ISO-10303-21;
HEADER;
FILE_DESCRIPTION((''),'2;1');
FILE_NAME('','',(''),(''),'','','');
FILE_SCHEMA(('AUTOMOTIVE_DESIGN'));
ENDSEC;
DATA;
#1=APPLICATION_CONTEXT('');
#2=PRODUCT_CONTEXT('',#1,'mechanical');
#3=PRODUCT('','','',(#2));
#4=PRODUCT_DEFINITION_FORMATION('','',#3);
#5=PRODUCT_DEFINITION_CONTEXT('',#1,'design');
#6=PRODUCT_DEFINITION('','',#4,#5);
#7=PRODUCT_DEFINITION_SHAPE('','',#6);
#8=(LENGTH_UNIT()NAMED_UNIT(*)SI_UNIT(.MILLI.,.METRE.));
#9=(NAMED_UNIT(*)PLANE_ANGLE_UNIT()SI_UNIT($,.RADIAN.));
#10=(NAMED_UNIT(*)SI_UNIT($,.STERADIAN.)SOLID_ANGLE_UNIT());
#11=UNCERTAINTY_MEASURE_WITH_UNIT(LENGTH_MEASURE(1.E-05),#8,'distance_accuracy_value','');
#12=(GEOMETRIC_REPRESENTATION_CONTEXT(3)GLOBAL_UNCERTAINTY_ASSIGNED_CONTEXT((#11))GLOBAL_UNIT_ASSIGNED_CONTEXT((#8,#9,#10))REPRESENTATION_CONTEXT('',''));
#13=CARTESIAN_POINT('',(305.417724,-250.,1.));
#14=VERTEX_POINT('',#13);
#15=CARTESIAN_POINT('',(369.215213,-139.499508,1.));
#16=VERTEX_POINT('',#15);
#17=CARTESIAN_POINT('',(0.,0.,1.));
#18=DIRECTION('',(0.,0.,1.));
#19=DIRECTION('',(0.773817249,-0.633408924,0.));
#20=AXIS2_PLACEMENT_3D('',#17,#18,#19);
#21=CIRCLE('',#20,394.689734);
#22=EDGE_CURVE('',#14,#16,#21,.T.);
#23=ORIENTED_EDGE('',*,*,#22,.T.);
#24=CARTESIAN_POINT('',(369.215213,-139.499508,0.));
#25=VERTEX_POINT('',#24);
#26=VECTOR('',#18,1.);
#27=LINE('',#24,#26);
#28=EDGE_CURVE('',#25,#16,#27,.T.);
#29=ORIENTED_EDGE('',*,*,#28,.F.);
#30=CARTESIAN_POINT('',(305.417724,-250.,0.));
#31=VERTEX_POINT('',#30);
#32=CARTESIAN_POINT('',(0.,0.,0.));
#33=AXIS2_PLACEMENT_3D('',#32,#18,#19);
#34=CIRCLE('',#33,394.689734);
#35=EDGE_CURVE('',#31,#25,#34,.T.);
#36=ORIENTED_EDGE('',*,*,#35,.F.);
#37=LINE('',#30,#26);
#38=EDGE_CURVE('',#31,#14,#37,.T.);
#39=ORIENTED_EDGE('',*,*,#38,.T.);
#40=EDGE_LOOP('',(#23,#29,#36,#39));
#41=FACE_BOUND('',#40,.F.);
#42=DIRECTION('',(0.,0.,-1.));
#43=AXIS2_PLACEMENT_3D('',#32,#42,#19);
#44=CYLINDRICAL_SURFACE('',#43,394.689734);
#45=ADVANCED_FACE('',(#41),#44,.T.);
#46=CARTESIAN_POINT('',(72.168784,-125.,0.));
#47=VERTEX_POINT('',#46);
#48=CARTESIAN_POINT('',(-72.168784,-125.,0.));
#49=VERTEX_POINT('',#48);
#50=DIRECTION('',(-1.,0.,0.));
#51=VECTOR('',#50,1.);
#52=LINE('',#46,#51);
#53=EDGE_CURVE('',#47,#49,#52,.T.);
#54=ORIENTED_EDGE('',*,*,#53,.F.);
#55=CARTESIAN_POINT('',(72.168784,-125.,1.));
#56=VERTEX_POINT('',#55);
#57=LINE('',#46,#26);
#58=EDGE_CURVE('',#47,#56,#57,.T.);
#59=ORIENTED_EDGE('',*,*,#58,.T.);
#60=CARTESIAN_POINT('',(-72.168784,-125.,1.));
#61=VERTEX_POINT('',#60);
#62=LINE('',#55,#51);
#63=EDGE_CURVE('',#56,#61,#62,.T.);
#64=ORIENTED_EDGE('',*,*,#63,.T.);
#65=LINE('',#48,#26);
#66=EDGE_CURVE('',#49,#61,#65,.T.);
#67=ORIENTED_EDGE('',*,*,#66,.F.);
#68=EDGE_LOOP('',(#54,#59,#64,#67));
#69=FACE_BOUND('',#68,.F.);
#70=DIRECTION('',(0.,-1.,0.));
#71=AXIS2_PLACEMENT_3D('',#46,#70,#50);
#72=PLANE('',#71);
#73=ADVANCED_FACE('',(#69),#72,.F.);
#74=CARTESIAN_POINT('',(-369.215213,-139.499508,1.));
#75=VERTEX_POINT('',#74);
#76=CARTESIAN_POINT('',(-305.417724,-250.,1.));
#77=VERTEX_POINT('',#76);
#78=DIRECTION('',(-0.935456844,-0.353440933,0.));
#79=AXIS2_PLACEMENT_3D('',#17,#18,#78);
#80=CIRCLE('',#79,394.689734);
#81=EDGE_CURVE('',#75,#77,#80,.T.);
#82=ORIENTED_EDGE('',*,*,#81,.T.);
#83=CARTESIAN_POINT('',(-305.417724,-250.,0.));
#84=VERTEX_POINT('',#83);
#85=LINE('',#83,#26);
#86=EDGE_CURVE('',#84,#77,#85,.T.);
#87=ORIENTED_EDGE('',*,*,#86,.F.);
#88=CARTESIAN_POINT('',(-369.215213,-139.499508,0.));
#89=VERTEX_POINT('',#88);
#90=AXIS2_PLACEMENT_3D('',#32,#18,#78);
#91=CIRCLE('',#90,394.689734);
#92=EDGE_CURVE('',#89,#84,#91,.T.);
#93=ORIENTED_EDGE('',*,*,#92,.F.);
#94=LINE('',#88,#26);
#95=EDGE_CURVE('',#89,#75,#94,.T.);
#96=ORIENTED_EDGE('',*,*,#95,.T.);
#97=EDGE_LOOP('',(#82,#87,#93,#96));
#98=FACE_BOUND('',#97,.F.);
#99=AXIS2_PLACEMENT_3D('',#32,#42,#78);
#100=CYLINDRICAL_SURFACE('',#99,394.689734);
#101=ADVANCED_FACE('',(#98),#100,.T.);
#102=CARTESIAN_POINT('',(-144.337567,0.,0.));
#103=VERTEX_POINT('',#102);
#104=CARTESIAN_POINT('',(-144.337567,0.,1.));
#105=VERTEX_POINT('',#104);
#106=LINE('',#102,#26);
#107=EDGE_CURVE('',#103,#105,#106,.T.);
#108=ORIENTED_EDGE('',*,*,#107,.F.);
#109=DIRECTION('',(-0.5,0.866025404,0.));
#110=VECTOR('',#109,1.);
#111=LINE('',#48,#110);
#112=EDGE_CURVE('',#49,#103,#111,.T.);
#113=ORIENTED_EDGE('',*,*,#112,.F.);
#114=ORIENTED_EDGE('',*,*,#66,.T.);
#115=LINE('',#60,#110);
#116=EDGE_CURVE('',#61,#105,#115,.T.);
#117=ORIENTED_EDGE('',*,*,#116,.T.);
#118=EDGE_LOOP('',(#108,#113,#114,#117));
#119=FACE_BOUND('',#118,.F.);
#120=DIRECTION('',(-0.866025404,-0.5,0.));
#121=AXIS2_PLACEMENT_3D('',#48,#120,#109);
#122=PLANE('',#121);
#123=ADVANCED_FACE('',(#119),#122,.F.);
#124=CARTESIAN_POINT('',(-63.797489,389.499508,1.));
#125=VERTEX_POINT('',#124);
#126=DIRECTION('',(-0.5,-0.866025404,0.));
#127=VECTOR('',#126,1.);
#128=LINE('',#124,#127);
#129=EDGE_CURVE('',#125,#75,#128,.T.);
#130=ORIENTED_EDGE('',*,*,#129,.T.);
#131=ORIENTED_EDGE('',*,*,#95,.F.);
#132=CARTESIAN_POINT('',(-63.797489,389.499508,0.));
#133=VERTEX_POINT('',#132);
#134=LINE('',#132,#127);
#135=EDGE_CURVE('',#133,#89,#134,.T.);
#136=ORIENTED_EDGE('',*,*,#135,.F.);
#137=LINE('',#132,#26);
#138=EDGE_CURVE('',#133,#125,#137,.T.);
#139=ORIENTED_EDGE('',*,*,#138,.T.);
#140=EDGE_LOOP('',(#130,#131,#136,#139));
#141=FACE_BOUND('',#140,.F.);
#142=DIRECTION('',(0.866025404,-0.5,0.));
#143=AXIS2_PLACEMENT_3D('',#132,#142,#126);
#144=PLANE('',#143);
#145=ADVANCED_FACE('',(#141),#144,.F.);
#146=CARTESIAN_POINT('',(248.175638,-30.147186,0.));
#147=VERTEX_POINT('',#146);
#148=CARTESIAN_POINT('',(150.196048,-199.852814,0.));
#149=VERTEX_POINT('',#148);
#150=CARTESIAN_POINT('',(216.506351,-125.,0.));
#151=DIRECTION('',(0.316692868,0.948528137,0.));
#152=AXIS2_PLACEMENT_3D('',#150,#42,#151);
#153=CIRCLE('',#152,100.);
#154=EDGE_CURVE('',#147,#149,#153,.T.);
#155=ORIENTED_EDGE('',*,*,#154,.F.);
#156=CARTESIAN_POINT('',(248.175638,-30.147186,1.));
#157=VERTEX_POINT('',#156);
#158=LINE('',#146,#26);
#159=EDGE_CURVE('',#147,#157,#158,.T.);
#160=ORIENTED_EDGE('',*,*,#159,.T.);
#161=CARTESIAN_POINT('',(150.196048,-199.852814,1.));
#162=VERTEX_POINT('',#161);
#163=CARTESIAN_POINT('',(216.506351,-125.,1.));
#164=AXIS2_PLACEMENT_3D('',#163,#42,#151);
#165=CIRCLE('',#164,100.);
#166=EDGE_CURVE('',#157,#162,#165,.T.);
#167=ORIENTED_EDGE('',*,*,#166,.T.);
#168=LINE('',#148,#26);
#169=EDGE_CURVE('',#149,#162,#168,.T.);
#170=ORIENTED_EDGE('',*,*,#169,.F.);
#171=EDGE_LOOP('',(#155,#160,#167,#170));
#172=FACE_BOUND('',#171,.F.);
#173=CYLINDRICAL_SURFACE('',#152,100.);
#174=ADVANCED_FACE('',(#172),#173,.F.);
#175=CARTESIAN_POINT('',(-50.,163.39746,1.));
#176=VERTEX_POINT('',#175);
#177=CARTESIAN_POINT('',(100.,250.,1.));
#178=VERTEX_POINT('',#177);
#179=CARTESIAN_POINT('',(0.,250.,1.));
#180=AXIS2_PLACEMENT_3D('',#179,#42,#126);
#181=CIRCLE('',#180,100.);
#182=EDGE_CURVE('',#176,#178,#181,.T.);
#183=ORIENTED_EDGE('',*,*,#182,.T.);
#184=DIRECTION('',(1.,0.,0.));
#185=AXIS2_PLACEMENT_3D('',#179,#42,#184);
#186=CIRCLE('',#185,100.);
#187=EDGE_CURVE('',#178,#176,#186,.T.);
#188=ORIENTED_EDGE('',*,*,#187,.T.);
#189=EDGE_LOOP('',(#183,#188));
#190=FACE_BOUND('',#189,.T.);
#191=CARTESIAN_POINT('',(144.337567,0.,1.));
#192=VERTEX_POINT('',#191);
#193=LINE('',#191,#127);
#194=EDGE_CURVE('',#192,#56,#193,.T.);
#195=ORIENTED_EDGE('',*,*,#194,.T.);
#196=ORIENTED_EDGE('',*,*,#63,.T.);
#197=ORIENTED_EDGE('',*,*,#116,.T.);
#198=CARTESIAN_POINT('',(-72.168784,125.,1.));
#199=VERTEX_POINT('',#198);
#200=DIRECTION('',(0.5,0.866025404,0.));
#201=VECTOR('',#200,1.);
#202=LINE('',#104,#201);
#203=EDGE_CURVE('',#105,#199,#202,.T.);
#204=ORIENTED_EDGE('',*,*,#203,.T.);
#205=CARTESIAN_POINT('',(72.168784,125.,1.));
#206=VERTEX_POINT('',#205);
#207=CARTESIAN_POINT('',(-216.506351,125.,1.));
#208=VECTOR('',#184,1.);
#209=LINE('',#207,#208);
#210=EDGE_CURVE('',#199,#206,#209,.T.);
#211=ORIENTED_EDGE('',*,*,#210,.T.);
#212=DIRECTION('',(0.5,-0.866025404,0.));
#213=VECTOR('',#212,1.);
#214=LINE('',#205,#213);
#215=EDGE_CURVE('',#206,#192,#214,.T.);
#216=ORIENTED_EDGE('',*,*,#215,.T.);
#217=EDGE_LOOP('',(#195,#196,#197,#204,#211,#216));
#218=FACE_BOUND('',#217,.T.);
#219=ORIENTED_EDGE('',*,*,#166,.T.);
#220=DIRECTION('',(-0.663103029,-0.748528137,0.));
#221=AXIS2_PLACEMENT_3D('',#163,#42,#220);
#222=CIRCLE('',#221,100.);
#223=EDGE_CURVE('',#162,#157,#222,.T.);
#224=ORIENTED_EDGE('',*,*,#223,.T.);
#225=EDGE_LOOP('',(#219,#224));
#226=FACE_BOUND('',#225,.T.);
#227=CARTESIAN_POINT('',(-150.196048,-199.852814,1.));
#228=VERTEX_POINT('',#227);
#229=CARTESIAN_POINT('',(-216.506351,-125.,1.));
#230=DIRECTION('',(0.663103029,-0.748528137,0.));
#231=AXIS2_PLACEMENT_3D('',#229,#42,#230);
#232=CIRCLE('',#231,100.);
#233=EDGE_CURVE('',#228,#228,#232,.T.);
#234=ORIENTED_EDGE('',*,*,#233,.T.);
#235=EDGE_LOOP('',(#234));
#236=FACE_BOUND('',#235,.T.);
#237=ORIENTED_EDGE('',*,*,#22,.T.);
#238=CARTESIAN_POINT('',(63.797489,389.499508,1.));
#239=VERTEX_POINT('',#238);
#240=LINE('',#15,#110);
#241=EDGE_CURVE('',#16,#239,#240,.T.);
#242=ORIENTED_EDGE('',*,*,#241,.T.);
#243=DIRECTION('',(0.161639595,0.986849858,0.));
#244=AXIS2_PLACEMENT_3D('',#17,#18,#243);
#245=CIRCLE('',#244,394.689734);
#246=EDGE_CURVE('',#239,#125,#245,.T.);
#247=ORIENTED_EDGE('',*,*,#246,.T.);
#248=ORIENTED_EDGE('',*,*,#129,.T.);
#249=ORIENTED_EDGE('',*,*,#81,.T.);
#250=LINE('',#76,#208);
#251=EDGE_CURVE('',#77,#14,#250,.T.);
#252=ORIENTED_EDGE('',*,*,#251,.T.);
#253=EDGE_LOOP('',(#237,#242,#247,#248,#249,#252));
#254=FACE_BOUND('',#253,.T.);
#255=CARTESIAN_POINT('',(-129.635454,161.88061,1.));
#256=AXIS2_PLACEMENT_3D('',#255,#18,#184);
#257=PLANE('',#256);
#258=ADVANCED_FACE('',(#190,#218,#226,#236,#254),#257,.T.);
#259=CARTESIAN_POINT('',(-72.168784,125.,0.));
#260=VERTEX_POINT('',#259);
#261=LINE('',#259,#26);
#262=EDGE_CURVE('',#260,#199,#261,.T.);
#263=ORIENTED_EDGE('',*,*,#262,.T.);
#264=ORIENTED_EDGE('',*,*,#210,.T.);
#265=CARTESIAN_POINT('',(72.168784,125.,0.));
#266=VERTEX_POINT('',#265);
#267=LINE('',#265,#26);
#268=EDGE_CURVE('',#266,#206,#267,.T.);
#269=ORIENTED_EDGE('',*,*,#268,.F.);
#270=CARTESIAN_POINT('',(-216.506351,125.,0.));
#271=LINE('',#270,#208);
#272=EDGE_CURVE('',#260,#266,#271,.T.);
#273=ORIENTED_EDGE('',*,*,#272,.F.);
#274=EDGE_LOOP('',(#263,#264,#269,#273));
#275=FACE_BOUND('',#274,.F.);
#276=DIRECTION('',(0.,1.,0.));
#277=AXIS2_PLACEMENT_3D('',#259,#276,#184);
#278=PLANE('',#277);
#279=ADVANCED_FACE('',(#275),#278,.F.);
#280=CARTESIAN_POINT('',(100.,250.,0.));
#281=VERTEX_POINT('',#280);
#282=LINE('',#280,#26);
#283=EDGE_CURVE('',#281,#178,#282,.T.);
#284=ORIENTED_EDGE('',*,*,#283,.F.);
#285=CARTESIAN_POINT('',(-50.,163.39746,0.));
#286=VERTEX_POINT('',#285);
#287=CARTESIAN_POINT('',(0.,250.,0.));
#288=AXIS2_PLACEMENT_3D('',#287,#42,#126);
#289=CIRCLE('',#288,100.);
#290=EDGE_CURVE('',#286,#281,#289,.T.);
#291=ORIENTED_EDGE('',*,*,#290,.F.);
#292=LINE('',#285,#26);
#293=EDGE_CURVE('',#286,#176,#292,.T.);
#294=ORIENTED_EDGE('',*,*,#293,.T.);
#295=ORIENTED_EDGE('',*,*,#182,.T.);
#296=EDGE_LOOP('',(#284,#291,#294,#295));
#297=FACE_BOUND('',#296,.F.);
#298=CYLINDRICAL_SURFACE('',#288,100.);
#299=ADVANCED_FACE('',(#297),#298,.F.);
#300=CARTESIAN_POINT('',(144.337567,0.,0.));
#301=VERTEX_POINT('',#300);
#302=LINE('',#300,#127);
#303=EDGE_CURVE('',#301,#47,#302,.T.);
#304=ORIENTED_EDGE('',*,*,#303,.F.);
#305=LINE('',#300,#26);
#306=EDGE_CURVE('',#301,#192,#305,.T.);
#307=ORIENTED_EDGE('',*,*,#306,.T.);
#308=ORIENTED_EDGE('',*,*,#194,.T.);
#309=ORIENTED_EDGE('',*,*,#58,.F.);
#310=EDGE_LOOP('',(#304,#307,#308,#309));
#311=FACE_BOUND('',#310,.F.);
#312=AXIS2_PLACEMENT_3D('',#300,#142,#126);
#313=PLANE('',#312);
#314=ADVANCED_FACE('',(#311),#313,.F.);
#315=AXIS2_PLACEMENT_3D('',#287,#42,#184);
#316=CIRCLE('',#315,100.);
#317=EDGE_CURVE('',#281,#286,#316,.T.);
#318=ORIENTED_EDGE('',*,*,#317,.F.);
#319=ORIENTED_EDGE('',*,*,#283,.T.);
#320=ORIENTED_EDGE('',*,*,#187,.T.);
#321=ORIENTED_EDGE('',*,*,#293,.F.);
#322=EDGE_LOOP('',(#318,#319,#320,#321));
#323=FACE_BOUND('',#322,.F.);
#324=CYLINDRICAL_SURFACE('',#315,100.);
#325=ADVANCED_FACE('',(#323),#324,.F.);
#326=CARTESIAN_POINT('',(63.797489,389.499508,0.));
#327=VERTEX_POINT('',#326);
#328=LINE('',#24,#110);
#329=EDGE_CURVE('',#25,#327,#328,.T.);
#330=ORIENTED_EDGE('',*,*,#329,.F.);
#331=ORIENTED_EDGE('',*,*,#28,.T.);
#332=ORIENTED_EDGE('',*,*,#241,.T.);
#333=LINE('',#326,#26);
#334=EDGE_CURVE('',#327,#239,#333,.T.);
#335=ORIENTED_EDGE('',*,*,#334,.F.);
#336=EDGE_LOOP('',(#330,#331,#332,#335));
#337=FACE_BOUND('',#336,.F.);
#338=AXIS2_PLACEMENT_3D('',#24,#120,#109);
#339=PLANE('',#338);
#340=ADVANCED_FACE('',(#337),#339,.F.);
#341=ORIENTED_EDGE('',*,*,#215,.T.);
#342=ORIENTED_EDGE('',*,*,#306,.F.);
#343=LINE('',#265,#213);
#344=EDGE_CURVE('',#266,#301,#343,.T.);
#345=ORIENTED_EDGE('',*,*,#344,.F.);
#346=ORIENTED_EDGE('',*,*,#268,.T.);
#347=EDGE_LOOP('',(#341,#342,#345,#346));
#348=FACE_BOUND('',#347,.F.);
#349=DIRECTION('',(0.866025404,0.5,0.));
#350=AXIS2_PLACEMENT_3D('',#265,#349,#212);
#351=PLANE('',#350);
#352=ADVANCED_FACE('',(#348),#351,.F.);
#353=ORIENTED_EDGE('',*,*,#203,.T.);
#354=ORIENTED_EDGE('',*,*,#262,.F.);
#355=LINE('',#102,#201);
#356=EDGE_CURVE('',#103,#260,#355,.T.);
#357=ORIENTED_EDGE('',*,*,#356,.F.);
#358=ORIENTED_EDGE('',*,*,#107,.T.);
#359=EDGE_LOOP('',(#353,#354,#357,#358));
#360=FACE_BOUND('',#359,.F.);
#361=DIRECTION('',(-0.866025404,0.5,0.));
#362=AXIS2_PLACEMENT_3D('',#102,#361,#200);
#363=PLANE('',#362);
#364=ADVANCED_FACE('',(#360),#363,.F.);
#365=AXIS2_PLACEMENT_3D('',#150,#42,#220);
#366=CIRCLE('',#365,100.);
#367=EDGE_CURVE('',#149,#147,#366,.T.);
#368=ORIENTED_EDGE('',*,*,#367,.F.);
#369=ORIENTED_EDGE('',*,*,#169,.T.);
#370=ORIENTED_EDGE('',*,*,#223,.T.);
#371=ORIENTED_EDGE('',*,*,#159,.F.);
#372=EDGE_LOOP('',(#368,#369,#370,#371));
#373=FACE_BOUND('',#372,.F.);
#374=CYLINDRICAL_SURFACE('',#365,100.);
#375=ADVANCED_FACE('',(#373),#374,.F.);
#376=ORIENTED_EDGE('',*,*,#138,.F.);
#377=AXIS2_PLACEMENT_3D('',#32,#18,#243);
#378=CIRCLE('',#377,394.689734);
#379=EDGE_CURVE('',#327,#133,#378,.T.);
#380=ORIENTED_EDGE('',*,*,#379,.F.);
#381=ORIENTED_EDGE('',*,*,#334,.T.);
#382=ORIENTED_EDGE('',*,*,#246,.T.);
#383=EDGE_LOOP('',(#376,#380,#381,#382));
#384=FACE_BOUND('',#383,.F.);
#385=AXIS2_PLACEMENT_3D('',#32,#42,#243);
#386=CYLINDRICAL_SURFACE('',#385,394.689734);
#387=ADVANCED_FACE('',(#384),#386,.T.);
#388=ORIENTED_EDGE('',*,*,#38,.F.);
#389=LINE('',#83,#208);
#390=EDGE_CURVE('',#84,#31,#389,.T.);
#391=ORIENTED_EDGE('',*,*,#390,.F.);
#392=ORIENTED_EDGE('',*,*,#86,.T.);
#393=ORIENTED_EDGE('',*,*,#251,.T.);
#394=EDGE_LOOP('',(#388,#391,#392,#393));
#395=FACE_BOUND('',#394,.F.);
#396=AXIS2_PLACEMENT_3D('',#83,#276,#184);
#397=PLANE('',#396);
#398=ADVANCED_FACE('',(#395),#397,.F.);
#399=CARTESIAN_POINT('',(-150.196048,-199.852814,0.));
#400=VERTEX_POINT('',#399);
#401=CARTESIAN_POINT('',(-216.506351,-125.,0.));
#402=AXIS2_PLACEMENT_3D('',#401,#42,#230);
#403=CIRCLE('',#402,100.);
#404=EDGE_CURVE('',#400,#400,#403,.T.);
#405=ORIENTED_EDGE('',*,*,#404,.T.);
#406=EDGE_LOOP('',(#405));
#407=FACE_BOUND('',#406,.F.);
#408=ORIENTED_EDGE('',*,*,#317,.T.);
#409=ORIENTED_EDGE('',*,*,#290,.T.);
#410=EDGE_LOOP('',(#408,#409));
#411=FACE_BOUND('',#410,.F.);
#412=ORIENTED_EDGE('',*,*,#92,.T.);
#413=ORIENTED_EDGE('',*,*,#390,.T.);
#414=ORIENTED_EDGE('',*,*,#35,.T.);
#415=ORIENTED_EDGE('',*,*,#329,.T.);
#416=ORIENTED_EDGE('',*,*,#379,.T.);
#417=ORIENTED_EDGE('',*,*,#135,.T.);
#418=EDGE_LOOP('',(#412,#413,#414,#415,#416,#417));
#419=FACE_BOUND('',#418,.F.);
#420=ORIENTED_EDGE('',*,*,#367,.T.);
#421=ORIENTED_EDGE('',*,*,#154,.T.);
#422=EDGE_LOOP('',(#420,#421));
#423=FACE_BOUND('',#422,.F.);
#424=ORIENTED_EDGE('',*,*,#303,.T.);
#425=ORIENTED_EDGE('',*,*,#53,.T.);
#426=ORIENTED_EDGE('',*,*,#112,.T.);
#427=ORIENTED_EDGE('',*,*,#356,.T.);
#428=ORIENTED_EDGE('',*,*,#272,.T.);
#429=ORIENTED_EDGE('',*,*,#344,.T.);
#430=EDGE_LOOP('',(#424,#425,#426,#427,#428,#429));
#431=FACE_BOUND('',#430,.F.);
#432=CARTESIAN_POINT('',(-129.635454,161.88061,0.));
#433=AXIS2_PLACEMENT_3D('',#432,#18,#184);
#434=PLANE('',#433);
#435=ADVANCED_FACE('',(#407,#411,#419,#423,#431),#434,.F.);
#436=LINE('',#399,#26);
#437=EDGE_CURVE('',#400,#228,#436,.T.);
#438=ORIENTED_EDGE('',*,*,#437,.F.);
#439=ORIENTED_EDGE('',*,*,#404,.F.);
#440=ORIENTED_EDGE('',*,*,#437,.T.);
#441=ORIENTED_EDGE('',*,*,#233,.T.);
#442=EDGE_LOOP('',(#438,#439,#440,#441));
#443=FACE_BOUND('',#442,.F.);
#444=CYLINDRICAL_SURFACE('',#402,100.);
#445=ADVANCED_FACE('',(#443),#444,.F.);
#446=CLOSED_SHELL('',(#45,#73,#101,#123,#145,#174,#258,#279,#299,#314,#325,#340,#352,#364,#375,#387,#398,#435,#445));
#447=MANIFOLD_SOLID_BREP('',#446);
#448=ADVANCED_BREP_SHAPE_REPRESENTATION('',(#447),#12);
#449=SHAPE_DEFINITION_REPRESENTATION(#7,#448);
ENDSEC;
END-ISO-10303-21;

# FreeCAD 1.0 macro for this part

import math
import FreeCAD as App
import Part
import Sketcher
Q = App.Units.Quantity

doc = App.newDocument("Part")
body = doc.addObject("PartDesign::Body", "Body")

# Sketch on XY plane
sketch1 = doc.addObject("Sketcher::SketchObject", "Sketch")
body.addObject(sketch1)
sketch1.AttachmentSupport = (doc.XY_Plane, [""])
sketch1.MapMode = "FlatFace"
sketch1.addGeometry([
    Part.LineSegment(App.Vector(-64, 389, 0), App.Vector(-369, -139, 0)),  # 0
    Part.ArcOfCircle(Part.Circle(App.Vector(0, 0, 0), App.Vector(0, 0, 1), 395), math.radians(-159.3), math.radians(-140.7)),  # 1
    Part.LineSegment(App.Vector(-305, -250, 0), App.Vector(305, -250, 0)),  # 2
    Part.ArcOfCircle(Part.Circle(App.Vector(0, 0, 0), App.Vector(0, 0, 1), 395), math.radians(-39.3), math.radians(-20.7)),  # 3
    Part.LineSegment(App.Vector(369, -139, 0), App.Vector(64, 389, 0)),  # 4
    Part.ArcOfCircle(Part.Circle(App.Vector(0, 0, 0), App.Vector(0, 0, 1), 395), math.radians(80.7), math.radians(99.3)),  # 5
    Part.Circle(App.Vector(-217, -125, 0), App.Vector(0, 0, 1), 100),  # 6
    Part.LineSegment(App.Vector(-72, -125, 0), App.Vector(-144, 0, 0)),  # 7
    Part.LineSegment(App.Vector(-144, 0, 0), App.Vector(-72, 125, 0)),  # 8
    Part.LineSegment(App.Vector(-72, 125, 0), App.Vector(72, 125, 0)),  # 9
    Part.LineSegment(App.Vector(72, 125, 0), App.Vector(144, 0, 0)),  # 10
    Part.LineSegment(App.Vector(144, 0, 0), App.Vector(72, -125, 0)),  # 11
    Part.LineSegment(App.Vector(72, -125, 0), App.Vector(-72, -125, 0)),  # 12
    Part.ArcOfCircle(Part.Circle(App.Vector(217, -125, 0), App.Vector(0, 0, 1), 100), math.radians(72), math.radians(228)),  # 13
    Part.ArcOfCircle(Part.Circle(App.Vector(217, -125, 0), App.Vector(0, 0, 1), 100), math.radians(-132), math.radians(72)),  # 14
    Part.ArcOfCircle(Part.Circle(App.Vector(0, 250, 0), App.Vector(0, 0, 1), 100), math.radians(0), math.radians(240)),  # 15
    Part.ArcOfCircle(Part.Circle(App.Vector(0, 250, 0), App.Vector(0, 0, 1), 100), math.radians(-120), math.radians(0)),  # 16
], False)
sketch1.addConstraint([
    Sketcher.Constraint("Coincident", 0, 2, 1, 1),
    Sketcher.Constraint("Coincident", 1, 2, 2, 1),
    Sketcher.Constraint("Coincident", 2, 2, 3, 1),
    Sketcher.Constraint("Coincident", 3, 2, 4, 1),
    Sketcher.Constraint("Coincident", 4, 2, 5, 1),
    Sketcher.Constraint("Coincident", 5, 2, 0, 1),
    Sketcher.Constraint("Coincident", 7, 2, 8, 1),
    Sketcher.Constraint("Coincident", 8, 2, 9, 1),
    Sketcher.Constraint("Coincident", 9, 2, 10, 1),
    Sketcher.Constraint("Coincident", 10, 2, 11, 1),
    Sketcher.Constraint("Coincident", 11, 2, 12, 1),
    Sketcher.Constraint("Coincident", 12, 2, 7, 1),
    Sketcher.Constraint("Tangent", 13, 1, 14, 2),
    Sketcher.Constraint("Coincident", 14, 1, 13, 2),
    Sketcher.Constraint("Tangent", 15, 1, 16, 2),
    Sketcher.Constraint("Coincident", 16, 1, 15, 2),
    Sketcher.Constraint("Horizontal", 2),
    Sketcher.Constraint("Horizontal", 9),
    Sketcher.Constraint("Horizontal", 12),
    Sketcher.Constraint("Coincident", 1, 3, -1, 1),
    Sketcher.Constraint("Coincident", 3, 3, -1, 1),
    Sketcher.Constraint("Coincident", 5, 3, -1, 1),
    Sketcher.Constraint("Equal", 1, 3),
    Sketcher.Constraint("Equal", 3, 5),
    Sketcher.Constraint("Equal", 6, 13),
    Sketcher.Constraint("Equal", 14, 15),
    Sketcher.Constraint("Symmetric", 7, 2, 10, 2, -1, 1),
    Sketcher.Constraint("Symmetric", 8, 2, 11, 2, -1, 1),
    Sketcher.Constraint("Symmetric", 6, 3, 13, 3, -2),
    Sketcher.Constraint("PointOnObject", 15, 3, -2),
    Sketcher.Constraint("PointOnObject", 7, 2, -1),
    Sketcher.Constraint("Parallel", 4, 7),
    Sketcher.Constraint("Parallel", 0, 8),
    Sketcher.Constraint("Parallel", 7, 10),
    Sketcher.Constraint("Horizontal", 0, 2, 3, 2),
    Sketcher.Constraint("Horizontal", 4, 2, 5, 2),
    Sketcher.Constraint("Horizontal", 14, 3, 11, 2),
    Sketcher.Constraint("Horizontal", 16, 3, 15, 1),
    Sketcher.Constraint("Diameter", 6, Q("200 mm")),
    Sketcher.Constraint("Angle", 0, Q("-120 deg")),
    Sketcher.Constraint("DistanceY", 6, 3, -1, 1, Q("125 mm")),
    Sketcher.Constraint("DistanceY", -1, 1, 15, 3, Q("250 mm")),
    Sketcher.Constraint("DistanceY", 2, 2, -1, 1, Q("250 mm")),
    Sketcher.Constraint("DistanceX", 16, 1, -1, 1, Q("50 mm")),
    Sketcher.Constraint("Radius", 1, Q("394.689734 mm")),
    Sketcher.Constraint("DistanceX", 6, 3, 13, 3, Q("433.012702 mm")),
    Sketcher.Constraint("Distance", 0, Q("610.835448 mm")),
    Sketcher.Constraint("DistanceX", 9, 1, 9, 2, Q("144.337567 mm")),
    Sketcher.Constraint("DistanceX", -1, 1, 14, 1, Q("150.196048 mm")),
    Sketcher.Constraint("DistanceX", 10, 2, 13, 1, Q("103.83807 mm")),
])
pad1 = doc.addObject("PartDesign::Pad", "Pad")
body.addObject(pad1)
pad1.Profile = sketch1
pad1.Length = 1

doc.recompute()
